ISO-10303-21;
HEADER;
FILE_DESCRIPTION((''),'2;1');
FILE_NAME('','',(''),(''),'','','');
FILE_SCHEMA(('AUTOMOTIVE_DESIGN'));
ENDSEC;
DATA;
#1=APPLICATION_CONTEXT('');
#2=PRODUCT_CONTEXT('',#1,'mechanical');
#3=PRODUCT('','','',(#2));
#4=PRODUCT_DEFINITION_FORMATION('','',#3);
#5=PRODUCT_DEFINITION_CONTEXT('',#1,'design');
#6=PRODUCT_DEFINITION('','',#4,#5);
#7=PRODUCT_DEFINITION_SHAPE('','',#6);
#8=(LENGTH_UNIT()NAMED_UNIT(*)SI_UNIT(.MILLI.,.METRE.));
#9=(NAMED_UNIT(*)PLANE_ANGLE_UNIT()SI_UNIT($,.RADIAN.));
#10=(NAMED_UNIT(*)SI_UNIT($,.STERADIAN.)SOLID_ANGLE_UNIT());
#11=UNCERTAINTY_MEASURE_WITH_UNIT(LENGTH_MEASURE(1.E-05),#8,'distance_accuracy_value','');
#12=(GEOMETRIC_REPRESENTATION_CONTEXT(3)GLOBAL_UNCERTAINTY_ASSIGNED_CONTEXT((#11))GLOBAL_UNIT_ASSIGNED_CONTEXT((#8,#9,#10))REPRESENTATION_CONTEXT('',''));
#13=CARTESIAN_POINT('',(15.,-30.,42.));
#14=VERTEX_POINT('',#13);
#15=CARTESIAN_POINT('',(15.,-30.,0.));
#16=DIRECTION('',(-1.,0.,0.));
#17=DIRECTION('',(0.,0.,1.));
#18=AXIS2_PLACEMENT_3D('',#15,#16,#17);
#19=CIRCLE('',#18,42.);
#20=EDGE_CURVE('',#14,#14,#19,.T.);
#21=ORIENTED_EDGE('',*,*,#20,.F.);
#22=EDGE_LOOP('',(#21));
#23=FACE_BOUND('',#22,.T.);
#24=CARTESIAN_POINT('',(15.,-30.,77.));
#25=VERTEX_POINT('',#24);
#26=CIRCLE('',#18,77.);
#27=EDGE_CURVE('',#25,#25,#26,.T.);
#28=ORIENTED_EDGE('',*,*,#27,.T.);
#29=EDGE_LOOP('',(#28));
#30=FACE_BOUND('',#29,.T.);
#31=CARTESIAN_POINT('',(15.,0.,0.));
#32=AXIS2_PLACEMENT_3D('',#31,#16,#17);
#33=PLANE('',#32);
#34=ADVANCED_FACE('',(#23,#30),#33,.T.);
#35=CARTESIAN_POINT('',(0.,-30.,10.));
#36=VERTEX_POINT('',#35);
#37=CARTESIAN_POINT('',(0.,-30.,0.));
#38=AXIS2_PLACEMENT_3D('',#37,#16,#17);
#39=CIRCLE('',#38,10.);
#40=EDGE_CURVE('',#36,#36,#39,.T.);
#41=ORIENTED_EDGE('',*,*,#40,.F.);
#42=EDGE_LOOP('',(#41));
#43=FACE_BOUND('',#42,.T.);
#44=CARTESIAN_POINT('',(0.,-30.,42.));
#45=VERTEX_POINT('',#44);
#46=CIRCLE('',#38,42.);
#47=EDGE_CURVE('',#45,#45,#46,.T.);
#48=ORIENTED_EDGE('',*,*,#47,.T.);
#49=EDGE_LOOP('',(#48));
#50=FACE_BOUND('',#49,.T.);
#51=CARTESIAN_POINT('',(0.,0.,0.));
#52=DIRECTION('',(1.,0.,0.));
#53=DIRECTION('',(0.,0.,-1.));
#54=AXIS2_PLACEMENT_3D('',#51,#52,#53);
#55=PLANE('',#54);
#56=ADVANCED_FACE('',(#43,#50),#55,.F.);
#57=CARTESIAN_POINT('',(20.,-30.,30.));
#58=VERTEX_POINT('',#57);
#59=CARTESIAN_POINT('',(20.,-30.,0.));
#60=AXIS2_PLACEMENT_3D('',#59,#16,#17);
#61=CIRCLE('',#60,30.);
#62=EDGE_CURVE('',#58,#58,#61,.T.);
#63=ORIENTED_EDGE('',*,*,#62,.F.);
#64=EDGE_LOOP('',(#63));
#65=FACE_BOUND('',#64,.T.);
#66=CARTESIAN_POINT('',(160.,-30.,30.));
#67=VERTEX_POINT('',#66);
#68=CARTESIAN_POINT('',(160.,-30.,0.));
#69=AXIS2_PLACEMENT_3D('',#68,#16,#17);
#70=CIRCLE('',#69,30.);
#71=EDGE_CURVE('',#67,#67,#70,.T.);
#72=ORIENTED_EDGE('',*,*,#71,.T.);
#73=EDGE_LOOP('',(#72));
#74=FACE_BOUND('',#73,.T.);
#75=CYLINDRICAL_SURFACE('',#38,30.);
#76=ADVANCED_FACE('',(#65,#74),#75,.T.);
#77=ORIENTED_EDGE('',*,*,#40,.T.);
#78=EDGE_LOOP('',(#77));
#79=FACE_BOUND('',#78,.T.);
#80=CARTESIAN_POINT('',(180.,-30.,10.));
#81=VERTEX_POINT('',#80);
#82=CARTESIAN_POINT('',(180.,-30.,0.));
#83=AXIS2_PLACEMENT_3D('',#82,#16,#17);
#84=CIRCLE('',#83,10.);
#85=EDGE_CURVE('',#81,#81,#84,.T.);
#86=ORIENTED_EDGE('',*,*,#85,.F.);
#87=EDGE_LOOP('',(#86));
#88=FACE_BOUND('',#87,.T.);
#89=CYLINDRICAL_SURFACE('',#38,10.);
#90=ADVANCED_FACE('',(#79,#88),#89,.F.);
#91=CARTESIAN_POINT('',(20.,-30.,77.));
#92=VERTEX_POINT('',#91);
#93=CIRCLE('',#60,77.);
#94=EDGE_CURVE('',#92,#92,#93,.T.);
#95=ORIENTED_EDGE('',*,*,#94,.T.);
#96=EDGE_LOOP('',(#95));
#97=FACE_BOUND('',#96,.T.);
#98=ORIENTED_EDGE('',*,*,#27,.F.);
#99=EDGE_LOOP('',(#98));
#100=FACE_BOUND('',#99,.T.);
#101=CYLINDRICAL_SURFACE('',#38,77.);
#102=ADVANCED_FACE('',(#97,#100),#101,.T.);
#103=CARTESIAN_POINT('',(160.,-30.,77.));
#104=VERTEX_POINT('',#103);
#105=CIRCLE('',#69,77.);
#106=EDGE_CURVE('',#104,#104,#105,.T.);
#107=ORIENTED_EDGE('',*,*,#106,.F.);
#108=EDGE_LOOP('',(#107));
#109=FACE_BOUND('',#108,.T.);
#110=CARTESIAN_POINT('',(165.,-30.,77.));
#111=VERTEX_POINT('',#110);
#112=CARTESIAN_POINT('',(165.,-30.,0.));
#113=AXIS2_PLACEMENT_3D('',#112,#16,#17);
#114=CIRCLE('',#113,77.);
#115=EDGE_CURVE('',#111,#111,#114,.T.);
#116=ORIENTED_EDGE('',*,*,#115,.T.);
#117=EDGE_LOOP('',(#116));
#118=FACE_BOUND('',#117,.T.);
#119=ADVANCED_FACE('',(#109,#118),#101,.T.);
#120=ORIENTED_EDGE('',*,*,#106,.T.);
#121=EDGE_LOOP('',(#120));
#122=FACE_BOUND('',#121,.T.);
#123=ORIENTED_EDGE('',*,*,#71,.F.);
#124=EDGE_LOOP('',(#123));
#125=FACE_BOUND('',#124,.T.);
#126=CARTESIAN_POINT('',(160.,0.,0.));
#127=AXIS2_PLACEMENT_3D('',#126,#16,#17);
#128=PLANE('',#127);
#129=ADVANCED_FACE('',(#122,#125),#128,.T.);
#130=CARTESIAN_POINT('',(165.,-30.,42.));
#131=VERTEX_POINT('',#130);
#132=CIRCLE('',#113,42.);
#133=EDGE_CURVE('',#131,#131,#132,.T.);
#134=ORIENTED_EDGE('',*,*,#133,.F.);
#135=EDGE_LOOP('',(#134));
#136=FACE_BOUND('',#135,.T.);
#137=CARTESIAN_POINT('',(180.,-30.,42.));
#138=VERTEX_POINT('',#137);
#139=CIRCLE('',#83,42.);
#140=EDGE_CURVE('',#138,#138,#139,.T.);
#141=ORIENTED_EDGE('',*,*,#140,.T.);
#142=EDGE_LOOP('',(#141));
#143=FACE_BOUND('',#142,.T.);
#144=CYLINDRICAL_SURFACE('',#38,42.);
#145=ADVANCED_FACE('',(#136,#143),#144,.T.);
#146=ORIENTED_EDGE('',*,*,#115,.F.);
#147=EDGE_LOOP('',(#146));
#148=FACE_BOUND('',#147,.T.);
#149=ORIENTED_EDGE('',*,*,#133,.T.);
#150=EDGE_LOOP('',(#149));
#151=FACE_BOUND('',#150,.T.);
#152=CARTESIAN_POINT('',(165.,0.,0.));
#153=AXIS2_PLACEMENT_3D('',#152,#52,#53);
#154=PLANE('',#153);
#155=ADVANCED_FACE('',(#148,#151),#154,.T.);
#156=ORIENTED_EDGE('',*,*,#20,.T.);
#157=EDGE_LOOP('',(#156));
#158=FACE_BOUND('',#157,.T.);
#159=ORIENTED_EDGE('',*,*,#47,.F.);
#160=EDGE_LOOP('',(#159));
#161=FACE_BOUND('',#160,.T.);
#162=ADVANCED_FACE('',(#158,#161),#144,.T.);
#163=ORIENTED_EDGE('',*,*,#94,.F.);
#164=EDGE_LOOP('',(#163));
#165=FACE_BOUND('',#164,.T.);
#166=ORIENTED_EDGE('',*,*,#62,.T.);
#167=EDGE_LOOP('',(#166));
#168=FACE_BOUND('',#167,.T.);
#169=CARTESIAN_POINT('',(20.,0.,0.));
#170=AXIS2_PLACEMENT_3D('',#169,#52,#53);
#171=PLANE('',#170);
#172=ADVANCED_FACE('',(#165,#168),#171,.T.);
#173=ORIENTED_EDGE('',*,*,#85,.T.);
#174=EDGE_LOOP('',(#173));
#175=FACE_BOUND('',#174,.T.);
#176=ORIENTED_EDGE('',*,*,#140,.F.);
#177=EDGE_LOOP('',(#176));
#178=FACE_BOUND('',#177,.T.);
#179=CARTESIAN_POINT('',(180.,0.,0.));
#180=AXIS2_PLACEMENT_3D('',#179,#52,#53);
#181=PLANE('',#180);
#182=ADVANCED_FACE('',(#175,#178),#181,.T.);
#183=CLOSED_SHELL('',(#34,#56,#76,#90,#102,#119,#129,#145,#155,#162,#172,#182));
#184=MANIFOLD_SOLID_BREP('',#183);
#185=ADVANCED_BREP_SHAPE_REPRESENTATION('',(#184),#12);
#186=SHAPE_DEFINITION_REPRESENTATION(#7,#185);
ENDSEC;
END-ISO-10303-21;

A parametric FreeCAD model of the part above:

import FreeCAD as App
import Part
import Sketcher
from FreeCAD import Vector


def add_polygon(sketch, points):
    """Adds a closed chain of lines whose ends are joined by coincident constraints."""
    first, n = sketch.GeometryCount, len(points)
    for a, b in zip(points, points[1:] + points[:1]):
        sketch.addGeometry(Part.LineSegment(App.Vector(*a, 0), App.Vector(*b, 0)), False)
    for i in range(n):
        sketch.addConstraint(Sketcher.Constraint("Coincident", first + i, 2, first + (i + 1) % n, 1))

doc = App.newDocument("Part")
body = doc.addObject("PartDesign::Body", "Body")

# Sketch on XY plane
sketch1 = body.newObject("Sketcher::SketchObject", "Sketch")
sketch1.AttachmentSupport = (doc.getObject("XY_Plane"), [""])
sketch1.MapMode = "FlatFace"
add_polygon(sketch1, [(160, 47), (160, 0), (20, 0), (20, 47), (15, 47), (15, 12), (0, 12), (0, -20), (180, -20), (180, 12), (165, 12), (165, 47)])  # lines 0-11
sketch1.addGeometry(Part.LineSegment(Vector(0, -30, 0), Vector(180, -30, 0)), True)  # axis
sketch1.addConstraint([
    Sketcher.Constraint("Vertical", 0),
    Sketcher.Constraint("Horizontal", 1),
    Sketcher.Constraint("Vertical", 2),
    Sketcher.Constraint("Horizontal", 3),
    Sketcher.Constraint("Vertical", 4),
    Sketcher.Constraint("Horizontal", 5),
    Sketcher.Constraint("Vertical", 6),
    Sketcher.Constraint("Horizontal", 7),
    Sketcher.Constraint("Vertical", 8),
    Sketcher.Constraint("Horizontal", 9),
    Sketcher.Constraint("Vertical", 10),
    Sketcher.Constraint("Horizontal", 11),
    Sketcher.Constraint("Horizontal", 12),
    Sketcher.Constraint("PointOnObject", 0, 2, -1),
    Sketcher.Constraint("PointOnObject", 5, 2, -2),
    Sketcher.Constraint("PointOnObject", 12, 1, -2),
    Sketcher.Constraint("Horizontal", 5, 2, 8, 2),
    Sketcher.Constraint("Horizontal", 3, 2, 10, 2),
    Sketcher.Constraint("Vertical", 8, 2, 12, 2),
    Sketcher.Constraint("Equal", 5, 9),
    Sketcher.Constraint("Equal", 3, 11),
    Sketcher.Constraint("DistanceX", 1, 2, 1, 1, 140.0),
    Sketcher.Constraint("DistanceX", 3, 2, 3, 1, 5.0),
    Sketcher.Constraint("DistanceX", 5, 2, 5, 1, 15.0),
    Sketcher.Constraint("DistanceY", 0, 2, 0, 1, 47.0),
    Sketcher.Constraint("DistanceY", 4, 2, 4, 1, 35.0),
    Sketcher.Constraint("DistanceY", 6, 2, 6, 1, 32.0),
    Sketcher.Constraint("DistanceY", 12, 1, -1, 1, 30.0),
])
revolution = body.newObject("PartDesign::Revolution", "Revolution")
revolution.Profile = sketch1
revolution.ReferenceAxis = (sketch1, ["Axis0"])
revolution.Angle = 360

doc.recompute()
